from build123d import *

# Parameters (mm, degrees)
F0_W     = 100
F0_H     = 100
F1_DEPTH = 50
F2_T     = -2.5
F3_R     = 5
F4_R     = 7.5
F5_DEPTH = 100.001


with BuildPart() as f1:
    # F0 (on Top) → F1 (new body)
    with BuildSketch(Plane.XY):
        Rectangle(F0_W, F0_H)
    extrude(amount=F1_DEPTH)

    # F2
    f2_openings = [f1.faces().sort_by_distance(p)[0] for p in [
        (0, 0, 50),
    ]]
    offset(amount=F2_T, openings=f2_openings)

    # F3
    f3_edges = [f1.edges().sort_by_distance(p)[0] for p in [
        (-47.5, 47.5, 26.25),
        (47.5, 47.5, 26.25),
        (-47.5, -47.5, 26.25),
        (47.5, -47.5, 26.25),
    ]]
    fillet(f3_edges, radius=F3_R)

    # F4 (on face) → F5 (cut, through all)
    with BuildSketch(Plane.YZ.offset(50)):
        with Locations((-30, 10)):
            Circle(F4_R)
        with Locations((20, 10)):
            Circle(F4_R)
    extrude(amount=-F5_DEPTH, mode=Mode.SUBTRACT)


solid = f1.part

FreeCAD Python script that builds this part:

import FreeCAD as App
import Part
import Sketcher

V = App.Vector


def edges_at(feature, points):
    """Names of the edges that pass closest to the given points."""
    edges = feature.Shape.Edges
    near = lambda p: min(range(len(edges)), key=lambda i: edges[i].distToShape(Part.Vertex(*p))[0])
    return sorted({f"Edge{near(p) + 1}" for p in points})


def faces_at(feature, points):
    """Names of the faces that lie closest to the given points."""
    faces = feature.Shape.Faces
    near = lambda p: min(range(len(faces)), key=lambda i: faces[i].distToShape(Part.Vertex(*p))[0])
    return sorted({f"Face{near(p) + 1}" for p in points})


def add_polygon(sketch, points):
    """Adds a closed chain of lines whose ends are joined by coincident constraints."""
    first, n = sketch.GeometryCount, len(points)
    for a, b in zip(points, points[1:] + points[:1]):
        sketch.addGeometry(Part.LineSegment(App.Vector(*a, 0), App.Vector(*b, 0)), False)
    for i in range(n):
        sketch.addConstraint(Sketcher.Constraint("Coincident", first + i, 2, first + (i + 1) % n, 1))

doc = App.newDocument("Part")
body = doc.addObject("PartDesign::Body", "Body")

# Sketch on XY plane
sketch1 = body.newObject("Sketcher::SketchObject", "Sketch")
sketch1.AttachmentSupport = (doc.getObject("XY_Plane"), [""])
sketch1.MapMode = "FlatFace"
add_polygon(sketch1, [(-50, 50), (-50, -50), (50, -50), (50, 50)])  # lines 0-3
sketch1.addConstraint([
    Sketcher.Constraint("Vertical", 0),
    Sketcher.Constraint("Horizontal", 1),
    Sketcher.Constraint("Vertical", 2),
    Sketcher.Constraint("Horizontal", 3),
    Sketcher.Constraint("Symmetric", 0, 2, 2, 2, -1, 1),
    Sketcher.Constraint("Equal", 3, 0),
    Sketcher.Constraint("DistanceX", 1, 1, 1, 2, 100.0),
])
pad1 = body.newObject("PartDesign::Pad", "Pad")
pad1.Profile = sketch1
pad1.Length = 50
doc.recompute()

thickness = body.newObject("PartDesign::Thickness", "Thickness")
thickness.Base = (pad1, faces_at(pad1, [(0, 0, 50)]))
thickness.Value = 2.5
thickness.Reversed = True
thickness.Join = "Arc"
doc.recompute()

fillet = body.newObject("PartDesign::Fillet", "Fillet")
fillet.Base = (thickness, edges_at(thickness, [
    (-47.5, 47.5, 26.25),
    (47.5, 47.5, 26.25),
    (-47.5, -47.5, 26.25),
    (47.5, -47.5, 26.25),
]))
fillet.Radius = 5

# Sketch on YZ plane
sketch2 = body.newObject("Sketcher::SketchObject", "Sketch001")
sketch2.AttachmentSupport = (doc.getObject("YZ_Plane"), [""])
sketch2.MapMode = "FlatFace"
sketch2.AttachmentOffset = App.Placement(V(0, 0, 50), App.Rotation())
sketch2.addGeometry([
    Part.Circle(V(-30, 10, 0), V(0, 0, 1), 7.5),
    Part.Circle(V(20, 10, 0), V(0, 0, 1), 7.5),
], False)
sketch2.addConstraint([
    Sketcher.Constraint("Equal", 0, 1),
    Sketcher.Constraint("Horizontal", 0, 3, 1, 3),
    Sketcher.Constraint("Diameter", 0, 15.0),
    Sketcher.Constraint("DistanceX", 0, 3, -1, 1, 30.0),
    Sketcher.Constraint("DistanceY", -1, 1, 0, 3, 10.0),
    Sketcher.Constraint("DistanceX", -1, 1, 1, 3, 20.0),
])
pocket1 = body.newObject("PartDesign::Pocket", "Pocket")
pocket1.Profile = sketch2
pocket1.Type = "ThroughAll"

doc.recompute()
